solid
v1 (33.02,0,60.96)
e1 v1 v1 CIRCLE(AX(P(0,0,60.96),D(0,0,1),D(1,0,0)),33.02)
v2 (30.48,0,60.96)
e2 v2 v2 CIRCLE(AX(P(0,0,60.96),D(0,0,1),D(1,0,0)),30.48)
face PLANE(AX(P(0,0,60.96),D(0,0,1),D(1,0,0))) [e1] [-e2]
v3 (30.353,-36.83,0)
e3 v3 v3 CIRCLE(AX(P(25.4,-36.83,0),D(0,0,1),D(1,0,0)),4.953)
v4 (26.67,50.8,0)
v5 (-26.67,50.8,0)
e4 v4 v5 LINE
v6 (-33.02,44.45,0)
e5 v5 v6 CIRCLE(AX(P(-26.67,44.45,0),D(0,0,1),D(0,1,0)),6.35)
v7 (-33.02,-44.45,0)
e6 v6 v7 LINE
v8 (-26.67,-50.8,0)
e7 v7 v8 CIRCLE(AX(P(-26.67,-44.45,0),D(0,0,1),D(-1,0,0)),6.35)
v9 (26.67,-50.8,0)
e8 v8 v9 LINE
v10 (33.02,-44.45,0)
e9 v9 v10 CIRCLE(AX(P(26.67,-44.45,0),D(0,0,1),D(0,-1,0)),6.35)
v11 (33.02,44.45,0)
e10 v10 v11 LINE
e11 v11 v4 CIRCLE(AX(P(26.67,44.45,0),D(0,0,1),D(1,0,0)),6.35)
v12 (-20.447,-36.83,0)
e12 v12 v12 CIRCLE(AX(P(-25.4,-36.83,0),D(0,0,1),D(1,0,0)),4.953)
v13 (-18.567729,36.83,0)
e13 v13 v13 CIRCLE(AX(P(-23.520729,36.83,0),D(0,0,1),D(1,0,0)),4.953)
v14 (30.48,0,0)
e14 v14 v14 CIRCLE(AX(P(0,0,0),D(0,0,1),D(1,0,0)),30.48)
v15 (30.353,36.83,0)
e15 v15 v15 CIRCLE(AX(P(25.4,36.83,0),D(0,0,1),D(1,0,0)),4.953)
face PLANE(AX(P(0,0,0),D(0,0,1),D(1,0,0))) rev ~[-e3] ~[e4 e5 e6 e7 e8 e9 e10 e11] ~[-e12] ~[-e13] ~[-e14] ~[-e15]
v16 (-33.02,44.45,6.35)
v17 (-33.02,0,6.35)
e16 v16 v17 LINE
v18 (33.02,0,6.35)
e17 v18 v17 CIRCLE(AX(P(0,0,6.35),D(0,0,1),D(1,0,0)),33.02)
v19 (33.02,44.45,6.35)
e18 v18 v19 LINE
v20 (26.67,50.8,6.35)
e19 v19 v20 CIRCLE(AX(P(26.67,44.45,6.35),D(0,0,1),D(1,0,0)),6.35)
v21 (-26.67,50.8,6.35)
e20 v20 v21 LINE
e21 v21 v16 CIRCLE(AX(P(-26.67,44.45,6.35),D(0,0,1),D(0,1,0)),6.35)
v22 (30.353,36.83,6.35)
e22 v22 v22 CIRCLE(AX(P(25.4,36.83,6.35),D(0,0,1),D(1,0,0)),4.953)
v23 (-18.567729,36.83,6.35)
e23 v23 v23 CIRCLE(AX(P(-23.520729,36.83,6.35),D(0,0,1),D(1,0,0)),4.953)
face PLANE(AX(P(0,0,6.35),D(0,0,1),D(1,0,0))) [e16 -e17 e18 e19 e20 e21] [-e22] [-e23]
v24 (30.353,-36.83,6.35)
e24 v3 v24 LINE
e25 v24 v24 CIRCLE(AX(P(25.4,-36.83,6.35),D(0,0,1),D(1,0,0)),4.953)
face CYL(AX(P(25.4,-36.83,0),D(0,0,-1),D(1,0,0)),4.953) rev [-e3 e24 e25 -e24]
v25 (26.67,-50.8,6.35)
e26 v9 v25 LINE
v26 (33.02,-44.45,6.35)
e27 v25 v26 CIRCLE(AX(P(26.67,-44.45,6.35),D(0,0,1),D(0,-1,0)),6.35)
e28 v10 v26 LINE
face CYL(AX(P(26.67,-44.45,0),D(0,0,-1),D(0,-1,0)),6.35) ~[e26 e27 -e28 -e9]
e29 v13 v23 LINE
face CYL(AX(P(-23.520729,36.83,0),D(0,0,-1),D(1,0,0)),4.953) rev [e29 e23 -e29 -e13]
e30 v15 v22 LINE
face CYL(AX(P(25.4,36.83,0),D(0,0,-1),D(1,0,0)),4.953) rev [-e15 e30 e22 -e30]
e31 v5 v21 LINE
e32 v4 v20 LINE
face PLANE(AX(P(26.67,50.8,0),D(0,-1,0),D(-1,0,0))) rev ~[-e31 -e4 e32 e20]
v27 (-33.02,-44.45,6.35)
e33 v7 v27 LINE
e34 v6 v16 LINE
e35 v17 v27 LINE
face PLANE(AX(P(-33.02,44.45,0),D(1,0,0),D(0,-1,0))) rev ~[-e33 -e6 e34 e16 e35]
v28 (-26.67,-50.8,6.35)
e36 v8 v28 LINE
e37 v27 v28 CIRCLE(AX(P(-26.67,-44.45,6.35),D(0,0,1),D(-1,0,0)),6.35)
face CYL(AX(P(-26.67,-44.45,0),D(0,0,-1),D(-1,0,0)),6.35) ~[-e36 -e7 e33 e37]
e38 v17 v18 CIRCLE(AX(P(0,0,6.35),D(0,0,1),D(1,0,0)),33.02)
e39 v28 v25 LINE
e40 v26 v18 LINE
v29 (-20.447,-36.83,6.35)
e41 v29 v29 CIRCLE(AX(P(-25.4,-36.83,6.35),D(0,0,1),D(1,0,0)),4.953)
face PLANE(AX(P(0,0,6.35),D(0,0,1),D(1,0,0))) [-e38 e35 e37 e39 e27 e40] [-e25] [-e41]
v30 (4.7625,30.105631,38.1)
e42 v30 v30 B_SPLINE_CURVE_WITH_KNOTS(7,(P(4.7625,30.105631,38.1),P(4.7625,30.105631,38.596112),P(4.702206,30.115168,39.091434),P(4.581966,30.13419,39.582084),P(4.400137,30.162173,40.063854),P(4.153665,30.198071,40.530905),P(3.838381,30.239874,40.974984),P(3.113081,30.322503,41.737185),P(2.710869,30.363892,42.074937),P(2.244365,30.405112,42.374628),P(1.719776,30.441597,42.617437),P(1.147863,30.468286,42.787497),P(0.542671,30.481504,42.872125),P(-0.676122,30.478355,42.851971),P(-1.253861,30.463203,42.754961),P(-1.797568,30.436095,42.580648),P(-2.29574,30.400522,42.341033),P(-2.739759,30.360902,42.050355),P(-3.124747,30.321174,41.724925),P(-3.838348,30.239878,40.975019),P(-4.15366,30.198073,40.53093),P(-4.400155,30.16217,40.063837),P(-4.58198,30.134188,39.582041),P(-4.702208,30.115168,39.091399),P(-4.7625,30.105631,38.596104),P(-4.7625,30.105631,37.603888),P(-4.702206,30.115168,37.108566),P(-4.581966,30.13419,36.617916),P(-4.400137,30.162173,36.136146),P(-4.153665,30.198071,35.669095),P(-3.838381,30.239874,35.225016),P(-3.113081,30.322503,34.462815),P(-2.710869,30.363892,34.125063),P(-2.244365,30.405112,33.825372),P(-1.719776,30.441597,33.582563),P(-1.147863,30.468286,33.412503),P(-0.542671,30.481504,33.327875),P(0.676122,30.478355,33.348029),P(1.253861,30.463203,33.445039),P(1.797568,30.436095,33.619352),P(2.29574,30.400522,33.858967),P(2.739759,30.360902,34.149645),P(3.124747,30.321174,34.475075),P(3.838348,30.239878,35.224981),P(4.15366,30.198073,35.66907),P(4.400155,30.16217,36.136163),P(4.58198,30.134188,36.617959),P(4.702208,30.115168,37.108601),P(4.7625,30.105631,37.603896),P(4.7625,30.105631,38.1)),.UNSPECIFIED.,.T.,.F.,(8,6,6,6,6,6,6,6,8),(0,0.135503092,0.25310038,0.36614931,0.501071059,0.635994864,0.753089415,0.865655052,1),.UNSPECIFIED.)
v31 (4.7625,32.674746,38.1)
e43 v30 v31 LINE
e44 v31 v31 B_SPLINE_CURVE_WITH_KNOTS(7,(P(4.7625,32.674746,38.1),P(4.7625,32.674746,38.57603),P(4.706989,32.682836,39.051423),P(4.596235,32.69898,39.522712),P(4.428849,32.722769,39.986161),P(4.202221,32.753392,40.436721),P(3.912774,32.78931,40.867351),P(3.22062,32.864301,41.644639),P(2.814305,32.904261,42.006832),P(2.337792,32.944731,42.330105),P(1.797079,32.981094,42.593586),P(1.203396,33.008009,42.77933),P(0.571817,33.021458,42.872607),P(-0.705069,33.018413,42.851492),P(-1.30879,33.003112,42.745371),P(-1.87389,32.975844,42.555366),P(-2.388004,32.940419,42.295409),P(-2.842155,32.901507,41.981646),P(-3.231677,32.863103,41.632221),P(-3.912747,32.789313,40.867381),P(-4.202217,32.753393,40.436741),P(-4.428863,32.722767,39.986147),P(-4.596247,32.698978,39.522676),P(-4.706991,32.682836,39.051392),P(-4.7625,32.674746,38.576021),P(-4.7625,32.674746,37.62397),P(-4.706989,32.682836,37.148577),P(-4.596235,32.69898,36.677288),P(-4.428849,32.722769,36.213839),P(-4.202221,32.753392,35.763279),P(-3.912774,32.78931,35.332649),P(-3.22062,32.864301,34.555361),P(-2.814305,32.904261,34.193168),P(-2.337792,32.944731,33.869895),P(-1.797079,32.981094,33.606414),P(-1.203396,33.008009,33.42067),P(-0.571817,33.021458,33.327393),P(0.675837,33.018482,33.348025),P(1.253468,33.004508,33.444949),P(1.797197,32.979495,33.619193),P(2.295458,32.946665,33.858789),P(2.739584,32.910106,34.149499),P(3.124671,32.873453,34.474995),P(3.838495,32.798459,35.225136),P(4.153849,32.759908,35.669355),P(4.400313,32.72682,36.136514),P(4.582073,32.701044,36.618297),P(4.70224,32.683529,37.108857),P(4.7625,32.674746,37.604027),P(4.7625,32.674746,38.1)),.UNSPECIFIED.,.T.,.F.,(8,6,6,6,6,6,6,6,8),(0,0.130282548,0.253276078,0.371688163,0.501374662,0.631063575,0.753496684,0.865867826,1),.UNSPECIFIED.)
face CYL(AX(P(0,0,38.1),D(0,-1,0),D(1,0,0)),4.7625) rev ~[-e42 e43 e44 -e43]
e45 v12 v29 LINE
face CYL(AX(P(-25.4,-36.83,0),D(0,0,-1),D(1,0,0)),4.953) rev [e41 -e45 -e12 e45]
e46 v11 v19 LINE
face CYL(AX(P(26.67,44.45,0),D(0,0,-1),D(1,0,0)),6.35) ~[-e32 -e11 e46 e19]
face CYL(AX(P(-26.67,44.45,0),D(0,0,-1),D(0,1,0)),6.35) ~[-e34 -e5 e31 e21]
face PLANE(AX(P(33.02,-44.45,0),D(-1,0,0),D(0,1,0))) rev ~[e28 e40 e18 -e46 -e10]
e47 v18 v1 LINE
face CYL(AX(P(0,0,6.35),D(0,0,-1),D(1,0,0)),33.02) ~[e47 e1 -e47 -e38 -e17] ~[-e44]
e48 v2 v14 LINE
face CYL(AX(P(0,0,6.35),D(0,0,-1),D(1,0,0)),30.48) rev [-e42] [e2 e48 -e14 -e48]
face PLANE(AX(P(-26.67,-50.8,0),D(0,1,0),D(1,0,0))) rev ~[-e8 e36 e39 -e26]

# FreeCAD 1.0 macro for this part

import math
import FreeCAD as App
import Part
import Sketcher
Q = App.Units.Quantity

doc = App.newDocument("Part")
body = doc.addObject("PartDesign::Body", "Body")

# Sketch on XY plane
sketch1 = body.newObject("Sketcher::SketchObject", "Sketch")
sketch1.AttachmentSupport = (doc.getObject("XY_Plane"), [""])
sketch1.MapMode = "FlatFace"
sketch1.addGeometry(Part.ArcOfCircle(Part.Circle(App.Vector(26.67, 44.45, 0), App.Vector(0, 0, 1), 6.35), math.radians(0), math.radians(90)), False)
sketch1.addGeometry(Part.LineSegment(App.Vector(26.67, 50.8, 0), App.Vector(-26.67, 50.8, 0)), False)
sketch1.addGeometry(Part.ArcOfCircle(Part.Circle(App.Vector(-26.67, 44.45, 0), App.Vector(0, 0, 1), 6.35), math.radians(90), math.radians(180)), False)
sketch1.addGeometry(Part.LineSegment(App.Vector(-33.02, 44.45, 0), App.Vector(-33.02, -44.45, 0)), False)
sketch1.addGeometry(Part.ArcOfCircle(Part.Circle(App.Vector(-26.67, -44.45, 0), App.Vector(0, 0, 1), 6.35), math.radians(180), math.radians(270)), False)
sketch1.addGeometry(Part.LineSegment(App.Vector(-26.67, -50.8, 0), App.Vector(26.67, -50.8, 0)), False)
sketch1.addGeometry(Part.ArcOfCircle(Part.Circle(App.Vector(26.67, -44.45, 0), App.Vector(0, 0, 1), 6.35), math.radians(-90), math.radians(0)), False)
sketch1.addGeometry(Part.LineSegment(App.Vector(33.02, -44.45, 0), App.Vector(33.02, 44.45, 0)), False)
sketch1.addGeometry(Part.Circle(App.Vector(-25.4, -36.83, 0), App.Vector(0, 0, 1), 4.953), False)
sketch1.addGeometry(Part.Circle(App.Vector(25.4, -36.83, 0), App.Vector(0, 0, 1), 4.953), False)
sketch1.addGeometry(Part.Circle(App.Vector(-23.520729, 36.83, 0), App.Vector(0, 0, 1), 4.953), False)
sketch1.addGeometry(Part.Circle(App.Vector(0, 0, 0), App.Vector(0, 0, 1), 30.48), False)
sketch1.addGeometry(Part.Circle(App.Vector(25.4, 36.83, 0), App.Vector(0, 0, 1), 4.953), False)
sketch1.addConstraint(Sketcher.Constraint("Tangent", 0, 2, 1, 1))
sketch1.addConstraint(Sketcher.Constraint("Tangent", 1, 2, 2, 1))
sketch1.addConstraint(Sketcher.Constraint("Tangent", 2, 2, 3, 1))
sketch1.addConstraint(Sketcher.Constraint("Tangent", 3, 2, 4, 1))
sketch1.addConstraint(Sketcher.Constraint("Tangent", 4, 2, 5, 1))
sketch1.addConstraint(Sketcher.Constraint("Tangent", 5, 2, 6, 1))
sketch1.addConstraint(Sketcher.Constraint("Tangent", 6, 2, 7, 1))
sketch1.addConstraint(Sketcher.Constraint("Tangent", 7, 2, 0, 1))
sketch1.addConstraint(Sketcher.Constraint("Horizontal", 1))
sketch1.addConstraint(Sketcher.Constraint("Vertical", 3))
sketch1.addConstraint(Sketcher.Constraint("Horizontal", 5))
sketch1.addConstraint(Sketcher.Constraint("Vertical", 7))
sketch1.addConstraint(Sketcher.Constraint("Coincident", 11, 3, -1, 1))
sketch1.addConstraint(Sketcher.Constraint("Equal", 0, 2))
sketch1.addConstraint(Sketcher.Constraint("Equal", 2, 4))
sketch1.addConstraint(Sketcher.Constraint("Equal", 4, 6))
sketch1.addConstraint(Sketcher.Constraint("Equal", 8, 9))
sketch1.addConstraint(Sketcher.Constraint("Equal", 9, 10))
sketch1.addConstraint(Sketcher.Constraint("Equal", 10, 12))
sketch1.addConstraint(Sketcher.Constraint("Symmetric", 0, 3, 4, 3, -1, 1))
sketch1.addConstraint(Sketcher.Constraint("Symmetric", 8, 3, 12, 3, -1, 1))
sketch1.addConstraint(Sketcher.Constraint("Symmetric", 8, 3, 9, 3, -2))
sketch1.addConstraint(Sketcher.Constraint("Horizontal", 10, 3, 12, 3))
sketch1.addConstraint(Sketcher.Constraint("Diameter", 11, Q("2.4 in")))
sketch1.addConstraint(Sketcher.Constraint("Diameter", 8, Q("0.39 in")))
sketch1.addConstraint(Sketcher.Constraint("Radius", 0, Q("0.25 in")))
sketch1.addConstraint(Sketcher.Constraint("DistanceX", 1, 2, 1, 1, Q("2.1 in")))
sketch1.addConstraint(Sketcher.Constraint("DistanceY", 3, 2, 3, 1, Q("3.5 in")))
sketch1.addConstraint(Sketcher.Constraint("DistanceX", 8, 3, -1, 1, Q("1 in")))
sketch1.addConstraint(Sketcher.Constraint("DistanceY", 4, 3, 8, 3, Q("0.3 in")))
sketch1.addConstraint(Sketcher.Constraint("DistanceX", 10, 3, -1, 1, Q("23.520729 mm")))
pad1 = body.newObject("PartDesign::Pad", "Pad")
pad1.Profile = sketch1
pad1.Length = Q("0.25 in")

# Sketch on XY plane
sketch2 = body.newObject("Sketcher::SketchObject", "Sketch001")
sketch2.AttachmentSupport = (doc.getObject("XY_Plane"), [""])
sketch2.MapMode = "FlatFace"
sketch2.AttachmentOffset = App.Placement(App.Vector(0, 0, 0.25 * 25.4), App.Rotation())
sketch2.addGeometry(Part.Circle(App.Vector(0, 0, 0), App.Vector(0, 0, 1), 33.02), False)
sketch2.addGeometry(Part.Circle(App.Vector(0, 0, 0), App.Vector(0, 0, 1), 30.48), False)
sketch2.addConstraint(Sketcher.Constraint("Coincident", 0, 3, -1, 1))
sketch2.addConstraint(Sketcher.Constraint("Coincident", 1, 3, -1, 1))
sketch2.addConstraint(Sketcher.Constraint("Diameter", 0, Q("2.6 in")))
sketch2.addConstraint(Sketcher.Constraint("Diameter", 1, Q("2.4 in")))
pad2 = body.newObject("PartDesign::Pad", "Pad001")
pad2.Profile = sketch2
pad2.Length = Q("2.15 in")

# Sketch on XZ plane
sketch3 = body.newObject("Sketcher::SketchObject", "Sketch002")
sketch3.AttachmentSupport = (doc.getObject("XZ_Plane"), [""])
sketch3.MapMode = "FlatFace"
sketch3.addGeometry(Part.Circle(App.Vector(0, 38.1, 0), App.Vector(0, 0, 1), 4.7625), False)
sketch3.addConstraint(Sketcher.Constraint("PointOnObject", 0, 3, -2))
sketch3.addConstraint(Sketcher.Constraint("Diameter", 0, Q("0.375 in")))
sketch3.addConstraint(Sketcher.Constraint("DistanceY", -1, 1, 0, 3, Q("1.5 in")))
pocket1 = body.newObject("PartDesign::Pocket", "Pocket")
pocket1.Profile = sketch3
pocket1.Type = "ThroughAll"

doc.recompute()
